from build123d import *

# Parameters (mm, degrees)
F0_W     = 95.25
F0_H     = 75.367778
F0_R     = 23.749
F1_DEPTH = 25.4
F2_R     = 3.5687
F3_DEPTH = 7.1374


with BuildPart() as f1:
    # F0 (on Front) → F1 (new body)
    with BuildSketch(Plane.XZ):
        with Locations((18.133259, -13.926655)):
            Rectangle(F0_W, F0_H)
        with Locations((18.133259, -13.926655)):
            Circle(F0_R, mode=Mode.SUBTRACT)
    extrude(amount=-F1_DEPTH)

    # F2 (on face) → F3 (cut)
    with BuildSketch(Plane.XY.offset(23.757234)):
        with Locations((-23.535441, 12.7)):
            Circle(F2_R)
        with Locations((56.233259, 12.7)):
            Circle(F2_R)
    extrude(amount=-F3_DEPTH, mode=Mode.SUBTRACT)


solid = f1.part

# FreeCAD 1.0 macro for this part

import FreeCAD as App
import Part
import Sketcher
Q = App.Units.Quantity

doc = App.newDocument("Part")
body = doc.addObject("PartDesign::Body", "Body")

sketch1 = body.newObject("Sketcher::SketchObject", "Sketch")
sketch1.AttachmentSupport = (doc.getObject("XZ_Plane"), [""])
sketch1.MapMode = "FlatFace"
sketch1.addGeometry([
    Part.LineSegment(App.Vector(-29, 24, 0), App.Vector(-29, -52, 0)),
    Part.LineSegment(App.Vector(-29, -52, 0), App.Vector(66, -52, 0)),
    Part.LineSegment(App.Vector(66, -52, 0), App.Vector(66, 24, 0)),
    Part.LineSegment(App.Vector(66, 24, 0), App.Vector(-29, 24, 0)),
    Part.Circle(App.Vector(18, -14, 0), App.Vector(0, 0, 1), 24),
], False)
sketch1.addConstraint([
    Sketcher.Constraint("Coincident", 0, 2, 1, 1),
    Sketcher.Constraint("Coincident", 1, 2, 2, 1),
    Sketcher.Constraint("Coincident", 2, 2, 3, 1),
    Sketcher.Constraint("Coincident", 3, 2, 0, 1),
    Sketcher.Constraint("Vertical", 0),
    Sketcher.Constraint("Horizontal", 1),
    Sketcher.Constraint("Vertical", 2),
    Sketcher.Constraint("Horizontal", 3),
    Sketcher.Constraint("Diameter", 4, Q("1.87 in")),
    Sketcher.Constraint("DistanceX", 1, 1, 1, 2, Q("3.75 in")),
    Sketcher.Constraint("DistanceX", 0, 2, 4, 3, Q("1.875 in")),
    Sketcher.Constraint("DistanceY", 0, 2, 0, 1, 75.367778),
    Sketcher.Constraint("DistanceX", -1, 1, 4, 3, 18.133259),
    Sketcher.Constraint("DistanceY", 0, 2, 4, 3, 37.683889),
    Sketcher.Constraint("DistanceY", 4, 3, -1, 1, 13.926655),
])
pad1 = body.newObject("PartDesign::Pad", "Pad")
pad1.Profile = sketch1
pad1.Length = Q("1 in")
pad1.Reversed = True

sketch2 = body.newObject("Sketcher::SketchObject", "Sketch001")
sketch2.AttachmentSupport = (doc.getObject("XY_Plane"), [""])
sketch2.MapMode = "FlatFace"
sketch2.AttachmentOffset = App.Placement(App.Vector(0, 0, 23.757234), App.Rotation())
sketch2.addGeometry([
    Part.Circle(App.Vector(-23.5, 12.7, 0), App.Vector(0, 0, 1), 3.6),
    Part.Circle(App.Vector(56.2, 12.7, 0), App.Vector(0, 0, 1), 3.6),
], False)
sketch2.addConstraint([
    Sketcher.Constraint("Equal", 0, 1),
    Sketcher.Constraint("Horizontal", 0, 3, 1, 3),
    Sketcher.Constraint("Diameter", 0, Q("0.281 in")),
    Sketcher.Constraint("DistanceY", -1, 1, 0, 3, Q("0.5 in")),
    Sketcher.Constraint("DistanceX", 0, 3, 1, 3, Q("3.1405 in")),
    Sketcher.Constraint("DistanceX", 0, 3, -1, 1, 23.535441),
])
pocket1 = body.newObject("PartDesign::Pocket", "Pocket")
pocket1.Profile = sketch2
pocket1.Length = Q("0.281 in")

doc.recompute()
